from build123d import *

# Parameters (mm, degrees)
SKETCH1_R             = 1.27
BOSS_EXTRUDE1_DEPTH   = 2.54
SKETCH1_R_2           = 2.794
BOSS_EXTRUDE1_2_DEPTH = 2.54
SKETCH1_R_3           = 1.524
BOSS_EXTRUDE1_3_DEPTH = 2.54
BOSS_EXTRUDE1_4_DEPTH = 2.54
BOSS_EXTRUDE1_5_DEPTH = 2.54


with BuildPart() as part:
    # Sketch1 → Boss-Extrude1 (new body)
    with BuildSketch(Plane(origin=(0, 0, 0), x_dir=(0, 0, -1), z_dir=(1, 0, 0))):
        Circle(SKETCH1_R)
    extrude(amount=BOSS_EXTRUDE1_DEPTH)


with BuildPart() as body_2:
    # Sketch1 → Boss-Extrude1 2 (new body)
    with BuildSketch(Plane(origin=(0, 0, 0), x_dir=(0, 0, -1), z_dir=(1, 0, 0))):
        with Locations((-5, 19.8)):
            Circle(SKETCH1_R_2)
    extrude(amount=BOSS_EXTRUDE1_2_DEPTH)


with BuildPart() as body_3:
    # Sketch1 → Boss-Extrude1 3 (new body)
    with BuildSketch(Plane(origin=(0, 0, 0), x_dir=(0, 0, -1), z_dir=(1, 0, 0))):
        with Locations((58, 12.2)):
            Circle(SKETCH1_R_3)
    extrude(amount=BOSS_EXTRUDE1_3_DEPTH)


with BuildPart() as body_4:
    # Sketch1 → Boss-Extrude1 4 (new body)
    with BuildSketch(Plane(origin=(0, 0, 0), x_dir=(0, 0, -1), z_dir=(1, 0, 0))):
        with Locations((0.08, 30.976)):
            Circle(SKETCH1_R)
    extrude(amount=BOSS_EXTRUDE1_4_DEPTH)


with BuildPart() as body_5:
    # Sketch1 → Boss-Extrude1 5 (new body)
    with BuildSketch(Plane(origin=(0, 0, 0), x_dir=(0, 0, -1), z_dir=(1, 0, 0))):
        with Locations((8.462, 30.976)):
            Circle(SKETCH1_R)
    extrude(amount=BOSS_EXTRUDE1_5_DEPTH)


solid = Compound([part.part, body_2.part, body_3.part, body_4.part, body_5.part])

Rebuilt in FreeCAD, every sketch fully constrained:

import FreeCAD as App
import Part
import Sketcher

V = App.Vector
Q = App.Units.Quantity

doc = App.newDocument("Part")
body = doc.addObject("PartDesign::Body", "Body")

# Sketch on YZ plane
sketch1 = body.newObject("Sketcher::SketchObject", "Sketch")
sketch1.AttachmentSupport = (doc.getObject("YZ_Plane"), [""])
sketch1.MapMode = "FlatFace"
sketch1.addGeometry(Part.Circle(V(0, 0, 0), V(0, 0, 1), 1.3), False)
sketch1.addConstraint(Sketcher.Constraint("Coincident", 0, 3, -1, 1))
sketch1.addConstraint(Sketcher.Constraint("Diameter", 0, Q("0.1 in")))
pad1 = body.newObject("PartDesign::Pad", "Pad")
pad1.Profile = sketch1
pad1.Length = Q("0.1 in")
body2 = doc.addObject("PartDesign::Body", "Body001")

# Sketch on YZ plane
sketch2 = body2.newObject("Sketcher::SketchObject", "Sketch001")
sketch2.AttachmentSupport = (doc.getObject("YZ_Plane001"), [""])
sketch2.MapMode = "FlatFace"
sketch2.addGeometry(Part.Circle(V(19.8, 5, 0), V(0, 0, 1), 2.8), False)
sketch2.addConstraint(Sketcher.Constraint("Diameter", 0, Q("0.22 in")))
sketch2.addConstraint(Sketcher.Constraint("DistanceX", -1, 1, 0, 3, Q("19.8 mm")))
sketch2.addConstraint(Sketcher.Constraint("DistanceY", -1, 1, 0, 3, Q("5 mm")))
pad2 = body2.newObject("PartDesign::Pad", "Pad001")
pad2.Profile = sketch2
pad2.Length = Q("0.1 in")
body3 = doc.addObject("PartDesign::Body", "Body002")

# Sketch on YZ plane
sketch3 = body3.newObject("Sketcher::SketchObject", "Sketch002")
sketch3.AttachmentSupport = (doc.getObject("YZ_Plane002"), [""])
sketch3.MapMode = "FlatFace"
sketch3.addGeometry(Part.Circle(V(12.2, -58, 0), V(0, 0, 1), 1.5), False)
sketch3.addConstraint(Sketcher.Constraint("Diameter", 0, Q("0.12 in")))
sketch3.addConstraint(Sketcher.Constraint("DistanceX", -1, 1, 0, 3, Q("12.2 mm")))
sketch3.addConstraint(Sketcher.Constraint("DistanceY", 0, 3, -1, 1, Q("58 mm")))
pad3 = body3.newObject("PartDesign::Pad", "Pad002")
pad3.Profile = sketch3
pad3.Length = Q("0.1 in")
body4 = doc.addObject("PartDesign::Body", "Body003")

# Sketch on YZ plane
sketch4 = body4.newObject("Sketcher::SketchObject", "Sketch003")
sketch4.AttachmentSupport = (doc.getObject("YZ_Plane003"), [""])
sketch4.MapMode = "FlatFace"
sketch4.addGeometry(Part.Circle(V(31, -0.1, 0), V(0, 0, 1), 1.3), False)
sketch4.addConstraint(Sketcher.Constraint("Diameter", 0, Q("0.1 in")))
sketch4.addConstraint(Sketcher.Constraint("DistanceX", -1, 1, 0, 3, Q("30.976 mm")))
sketch4.addConstraint(Sketcher.Constraint("DistanceY", 0, 3, -1, 1, Q("0.08 mm")))
pad4 = body4.newObject("PartDesign::Pad", "Pad003")
pad4.Profile = sketch4
pad4.Length = Q("0.1 in")
body5 = doc.addObject("PartDesign::Body", "Body004")

# Sketch on YZ plane
sketch5 = body5.newObject("Sketcher::SketchObject", "Sketch004")
sketch5.AttachmentSupport = (doc.getObject("YZ_Plane004"), [""])
sketch5.MapMode = "FlatFace"
sketch5.addGeometry(Part.Circle(V(31, -8.5, 0), V(0, 0, 1), 1.3), False)
sketch5.addConstraint(Sketcher.Constraint("Diameter", 0, Q("0.1 in")))
sketch5.addConstraint(Sketcher.Constraint("DistanceX", -1, 1, 0, 3, Q("30.976 mm")))
sketch5.addConstraint(Sketcher.Constraint("DistanceY", 0, 3, -1, 1, Q("8.462 mm")))
pad5 = body5.newObject("PartDesign::Pad", "Pad004")
pad5.Profile = sketch5
pad5.Length = Q("0.1 in")

doc.recompute()
